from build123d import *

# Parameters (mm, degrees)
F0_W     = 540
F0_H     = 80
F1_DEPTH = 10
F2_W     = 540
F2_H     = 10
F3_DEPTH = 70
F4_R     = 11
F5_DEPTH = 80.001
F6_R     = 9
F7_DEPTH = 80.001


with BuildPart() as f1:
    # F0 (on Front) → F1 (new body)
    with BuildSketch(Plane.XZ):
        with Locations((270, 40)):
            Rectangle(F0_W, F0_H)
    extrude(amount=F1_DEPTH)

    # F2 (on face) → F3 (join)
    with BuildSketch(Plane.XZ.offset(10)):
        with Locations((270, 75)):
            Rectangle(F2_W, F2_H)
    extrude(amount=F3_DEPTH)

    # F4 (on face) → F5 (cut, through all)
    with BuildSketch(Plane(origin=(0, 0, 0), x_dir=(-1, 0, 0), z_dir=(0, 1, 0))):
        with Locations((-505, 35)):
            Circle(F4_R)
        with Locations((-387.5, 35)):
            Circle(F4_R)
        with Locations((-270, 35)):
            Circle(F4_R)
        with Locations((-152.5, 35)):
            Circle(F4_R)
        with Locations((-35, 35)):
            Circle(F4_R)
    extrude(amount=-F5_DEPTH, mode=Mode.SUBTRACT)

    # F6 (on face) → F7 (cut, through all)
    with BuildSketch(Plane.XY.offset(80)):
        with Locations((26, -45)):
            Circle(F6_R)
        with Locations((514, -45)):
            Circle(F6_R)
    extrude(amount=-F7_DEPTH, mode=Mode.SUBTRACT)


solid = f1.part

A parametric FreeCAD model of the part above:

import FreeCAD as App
import Part
import Sketcher

V = App.Vector
Q = App.Units.Quantity


def add_polygon(sketch, points):
    """Adds a closed chain of lines whose ends are joined by coincident constraints."""
    first, n = sketch.GeometryCount, len(points)
    for a, b in zip(points, points[1:] + points[:1]):
        sketch.addGeometry(Part.LineSegment(App.Vector(*a, 0), App.Vector(*b, 0)), False)
    for i in range(n):
        sketch.addConstraint(Sketcher.Constraint("Coincident", first + i, 2, first + (i + 1) % n, 1))

doc = App.newDocument("Part")
body = doc.addObject("PartDesign::Body", "Body")

# Sketch on XZ plane
sketch1 = body.newObject("Sketcher::SketchObject", "Sketch")
sketch1.AttachmentSupport = (doc.getObject("XZ_Plane"), [""])
sketch1.MapMode = "FlatFace"
add_polygon(sketch1, [(0, 80), (0, 0), (540, 0), (540, 80)])  # lines 0-3
sketch1.addConstraint([
    Sketcher.Constraint("Vertical", 0),
    Sketcher.Constraint("Horizontal", 1),
    Sketcher.Constraint("Vertical", 2),
    Sketcher.Constraint("Horizontal", 3),
    Sketcher.Constraint("Coincident", 0, 2, -1, 1),
    Sketcher.Constraint("DistanceX", 1, 1, 1, 2, Q("540 mm")),
    Sketcher.Constraint("DistanceY", 0, 2, 0, 1, Q("80 mm")),
])
pad1 = body.newObject("PartDesign::Pad", "Pad")
pad1.Profile = sketch1
pad1.Length = 10

# Sketch on XZ plane
sketch2 = body.newObject("Sketcher::SketchObject", "Sketch001")
sketch2.AttachmentSupport = (doc.getObject("XZ_Plane"), [""])
sketch2.MapMode = "FlatFace"
sketch2.AttachmentOffset = App.Placement(V(0, 0, 10), App.Rotation())
add_polygon(sketch2, [(0, 80), (0, 70), (540, 70), (540, 80)])  # lines 0-3
sketch2.addConstraint([
    Sketcher.Constraint("Vertical", 0),
    Sketcher.Constraint("Horizontal", 1),
    Sketcher.Constraint("Vertical", 2),
    Sketcher.Constraint("Horizontal", 3),
    Sketcher.Constraint("PointOnObject", 0, 2, -2),
    Sketcher.Constraint("DistanceX", 1, 1, 1, 2, Q("540 mm")),
    Sketcher.Constraint("DistanceY", 0, 2, 0, 1, Q("10 mm")),
    Sketcher.Constraint("DistanceY", -1, 1, 0, 2, Q("70 mm")),
])
pad2 = body.newObject("PartDesign::Pad", "Pad001")
pad2.Profile = sketch2
pad2.Length = 70

# Sketch on XZ plane
sketch3 = body.newObject("Sketcher::SketchObject", "Sketch002")
sketch3.AttachmentSupport = (doc.getObject("XZ_Plane"), [""])
sketch3.MapMode = "FlatFace"
sketch3.addGeometry([
    Part.Circle(V(505, 35, 0), V(0, 0, 1), 11),  # 0
    Part.Circle(V(388, 35, 0), V(0, 0, 1), 11),  # 1
    Part.Circle(V(270, 35, 0), V(0, 0, 1), 11),  # 2
    Part.Circle(V(152, 35, 0), V(0, 0, 1), 11),  # 3
    Part.Circle(V(35, 35, 0), V(0, 0, 1), 11),  # 4
], False)
sketch3.addConstraint([
    Sketcher.Constraint("Equal", 0, 1),
    Sketcher.Constraint("Equal", 1, 2),
    Sketcher.Constraint("Equal", 2, 3),
    Sketcher.Constraint("Equal", 3, 4),
    Sketcher.Constraint("Horizontal", 0, 3, 1, 3),
    Sketcher.Constraint("Horizontal", 1, 3, 2, 3),
    Sketcher.Constraint("Horizontal", 2, 3, 3, 3),
    Sketcher.Constraint("Horizontal", 3, 3, 4, 3),
    Sketcher.Constraint("Diameter", 0, Q("22 mm")),
    Sketcher.Constraint("DistanceX", -1, 1, 0, 3, Q("505 mm")),
    Sketcher.Constraint("DistanceY", -1, 1, 0, 3, Q("35 mm")),
    Sketcher.Constraint("DistanceX", -1, 1, 2, 3, Q("270 mm")),
    Sketcher.Constraint("DistanceX", -1, 1, 4, 3, Q("35 mm")),
    Sketcher.Constraint("DistanceX", 3, 3, 1, 3, Q("235 mm")),
    Sketcher.Constraint("DistanceX", -1, 1, 1, 3, Q("387.5 mm")),
])
pocket1 = body.newObject("PartDesign::Pocket", "Pocket")
pocket1.Profile = sketch3
pocket1.Type = "ThroughAll"
pocket1.Reversed = True

# Sketch on XY plane
sketch4 = body.newObject("Sketcher::SketchObject", "Sketch003")
sketch4.AttachmentSupport = (doc.getObject("XY_Plane"), [""])
sketch4.MapMode = "FlatFace"
sketch4.AttachmentOffset = App.Placement(V(0, 0, 80), App.Rotation())
sketch4.addGeometry([
    Part.Circle(V(26, -45, 0), V(0, 0, 1), 9),
    Part.Circle(V(514, -45, 0), V(0, 0, 1), 9),
], False)
sketch4.addConstraint([
    Sketcher.Constraint("Equal", 0, 1),
    Sketcher.Constraint("Horizontal", 0, 3, 1, 3),
    Sketcher.Constraint("Diameter", 0, Q("18 mm")),
    Sketcher.Constraint("DistanceX", -1, 1, 0, 3, Q("26 mm")),
    Sketcher.Constraint("DistanceY", 0, 3, -1, 1, Q("45 mm")),
    Sketcher.Constraint("DistanceX", -1, 1, 1, 3, Q("514 mm")),
])
pocket2 = body.newObject("PartDesign::Pocket", "Pocket001")
pocket2.Profile = sketch4
pocket2.Type = "ThroughAll"

doc.recompute()
